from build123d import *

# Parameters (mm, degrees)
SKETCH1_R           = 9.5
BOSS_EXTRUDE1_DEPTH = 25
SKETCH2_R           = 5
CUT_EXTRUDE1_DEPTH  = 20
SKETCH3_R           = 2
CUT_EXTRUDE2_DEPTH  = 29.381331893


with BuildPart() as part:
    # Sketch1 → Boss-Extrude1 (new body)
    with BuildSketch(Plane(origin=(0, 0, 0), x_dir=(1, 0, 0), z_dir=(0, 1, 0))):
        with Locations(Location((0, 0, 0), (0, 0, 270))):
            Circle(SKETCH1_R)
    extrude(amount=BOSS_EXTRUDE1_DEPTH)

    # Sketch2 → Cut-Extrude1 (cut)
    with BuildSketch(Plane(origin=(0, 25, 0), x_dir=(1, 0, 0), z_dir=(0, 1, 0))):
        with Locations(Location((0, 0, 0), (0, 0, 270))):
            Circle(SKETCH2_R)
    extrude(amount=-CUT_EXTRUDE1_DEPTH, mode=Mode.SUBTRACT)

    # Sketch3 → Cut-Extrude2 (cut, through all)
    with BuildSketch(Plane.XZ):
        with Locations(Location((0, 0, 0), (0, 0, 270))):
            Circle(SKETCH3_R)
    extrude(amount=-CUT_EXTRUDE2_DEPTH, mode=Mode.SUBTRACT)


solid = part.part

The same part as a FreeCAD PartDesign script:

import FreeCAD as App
import Part
import Sketcher
from FreeCAD import Vector

doc = App.newDocument("Part")
body = doc.addObject("PartDesign::Body", "Body")

# Sketch on XZ plane
sketch1 = body.newObject("Sketcher::SketchObject", "Sketch")
sketch1.AttachmentSupport = (doc.getObject("XZ_Plane"), [""])
sketch1.MapMode = "FlatFace"
sketch1.addGeometry(Part.Circle(Vector(0, 0, 0), Vector(0, 0, 1), 10), False)
sketch1.addConstraint([
    Sketcher.Constraint("Coincident", 0, 3, -1, 1),
    Sketcher.Constraint("Diameter", 0, 19.0),
])
pad1 = body.newObject("PartDesign::Pad", "Pad")
pad1.Profile = sketch1
pad1.Length = 25
pad1.Reversed = True

# Sketch on XZ plane
sketch2 = body.newObject("Sketcher::SketchObject", "Sketch001")
sketch2.AttachmentSupport = (doc.getObject("XZ_Plane"), [""])
sketch2.MapMode = "FlatFace"
sketch2.AttachmentOffset = App.Placement(Vector(0, 0, -25), App.Rotation())
sketch2.addGeometry(Part.Circle(Vector(0, 0, 0), Vector(0, 0, 1), 5), False)
sketch2.addConstraint([
    Sketcher.Constraint("Coincident", 0, 3, -1, 1),
    Sketcher.Constraint("Diameter", 0, 10.0),
])
pocket1 = body.newObject("PartDesign::Pocket", "Pocket")
pocket1.Profile = sketch2
pocket1.Length = 20
pocket1.Reversed = True

# Sketch on XZ plane
sketch3 = body.newObject("Sketcher::SketchObject", "Sketch002")
sketch3.AttachmentSupport = (doc.getObject("XZ_Plane"), [""])
sketch3.MapMode = "FlatFace"
sketch3.addGeometry(Part.Circle(Vector(0, 0, 0), Vector(0, 0, 1), 2), False)
sketch3.addConstraint([
    Sketcher.Constraint("Coincident", 0, 3, -1, 1),
    Sketcher.Constraint("Diameter", 0, 4.0),
])
pocket2 = body.newObject("PartDesign::Pocket", "Pocket001")
pocket2.Profile = sketch3
pocket2.Type = "ThroughAll"

doc.recompute()
